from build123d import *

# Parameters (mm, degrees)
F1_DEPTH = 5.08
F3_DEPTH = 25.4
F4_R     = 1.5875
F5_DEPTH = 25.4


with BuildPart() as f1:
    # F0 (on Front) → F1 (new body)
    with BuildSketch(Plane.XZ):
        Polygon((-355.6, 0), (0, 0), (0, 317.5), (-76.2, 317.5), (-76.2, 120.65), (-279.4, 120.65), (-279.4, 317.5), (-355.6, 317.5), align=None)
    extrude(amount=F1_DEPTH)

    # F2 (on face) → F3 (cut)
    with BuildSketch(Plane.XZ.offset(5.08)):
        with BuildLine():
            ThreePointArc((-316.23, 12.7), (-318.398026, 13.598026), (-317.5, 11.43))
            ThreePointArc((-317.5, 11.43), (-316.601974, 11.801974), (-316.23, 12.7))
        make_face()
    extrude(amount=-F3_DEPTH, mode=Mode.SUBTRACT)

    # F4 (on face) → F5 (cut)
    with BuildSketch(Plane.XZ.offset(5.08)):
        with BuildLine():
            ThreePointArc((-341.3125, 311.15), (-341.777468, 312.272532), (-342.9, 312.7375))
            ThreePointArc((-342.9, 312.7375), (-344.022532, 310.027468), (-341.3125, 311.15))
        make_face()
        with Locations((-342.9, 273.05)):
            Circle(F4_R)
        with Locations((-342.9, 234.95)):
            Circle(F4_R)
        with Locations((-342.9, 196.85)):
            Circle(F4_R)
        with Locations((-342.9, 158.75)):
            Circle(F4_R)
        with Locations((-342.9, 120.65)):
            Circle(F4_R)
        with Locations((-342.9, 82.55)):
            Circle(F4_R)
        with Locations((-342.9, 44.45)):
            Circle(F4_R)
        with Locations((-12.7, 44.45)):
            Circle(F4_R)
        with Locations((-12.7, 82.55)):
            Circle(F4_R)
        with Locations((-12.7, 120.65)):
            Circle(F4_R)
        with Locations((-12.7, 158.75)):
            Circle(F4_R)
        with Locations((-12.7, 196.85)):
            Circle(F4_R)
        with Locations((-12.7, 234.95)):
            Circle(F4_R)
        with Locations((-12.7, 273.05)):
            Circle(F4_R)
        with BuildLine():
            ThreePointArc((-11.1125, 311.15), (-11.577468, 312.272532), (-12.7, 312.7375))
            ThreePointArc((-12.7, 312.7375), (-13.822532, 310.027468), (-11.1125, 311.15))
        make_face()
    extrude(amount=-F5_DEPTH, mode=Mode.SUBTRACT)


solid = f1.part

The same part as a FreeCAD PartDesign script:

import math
import FreeCAD as App
import Part
import Sketcher
from FreeCAD import Vector
Q = App.Units.Quantity

doc = App.newDocument("Part")
params = doc.addObject("Spreadsheet::Sheet", "Params")
for row, (alias, value) in enumerate([
    ("sketch1_width", "14 in"),
    ("sketch1_width2", "3 in"),
    ("sketch1_height", "12.5 in"),
    ("sketch1_height2", "7.75 in"),
    ("pad1_length", "0.2 in"),
    ("sketch2_radius", "0.05 in"),
    ("pocket1_length", "1 in"),
    ("sketch3_diameter", "0.125 in"),
    ("pocket2_length", "1 in"),
], start=1):
    params.set(f"A{row}", alias)
    params.set(f"B{row}", "=" + value)
    params.setAlias(f"B{row}", alias)

body = doc.addObject("PartDesign::Body", "Body")

sketch1 = doc.addObject("Sketcher::SketchObject", "Sketch")
body.addObject(sketch1)
sketch1.AttachmentSupport = (doc.XZ_Plane, [""])
sketch1.MapMode = "FlatFace"
sketch1.addGeometry(Part.LineSegment(Vector(-355.6, 0, 0), Vector(0, 0, 0)), False)
sketch1.addGeometry(Part.LineSegment(Vector(0, 0, 0), Vector(0, 317.5, 0)), False)
sketch1.addGeometry(Part.LineSegment(Vector(0, 317.5, 0), Vector(-76.2, 317.5, 0)), False)
sketch1.addGeometry(Part.LineSegment(Vector(-76.2, 317.5, 0), Vector(-76.2, 120.65, 0)), False)
sketch1.addGeometry(Part.LineSegment(Vector(-76.2, 120.65, 0), Vector(-279.4, 120.65, 0)), False)
sketch1.addGeometry(Part.LineSegment(Vector(-279.4, 120.65, 0), Vector(-279.4, 317.5, 0)), False)
sketch1.addGeometry(Part.LineSegment(Vector(-279.4, 317.5, 0), Vector(-355.6, 317.5, 0)), False)
sketch1.addGeometry(Part.LineSegment(Vector(-355.6, 317.5, 0), Vector(-355.6, 0, 0)), False)
sketch1.addConstraint(Sketcher.Constraint("Coincident", 0, 2, 1, 1))
sketch1.addConstraint(Sketcher.Constraint("Coincident", 1, 2, 2, 1))
sketch1.addConstraint(Sketcher.Constraint("Coincident", 2, 2, 3, 1))
sketch1.addConstraint(Sketcher.Constraint("Coincident", 3, 2, 4, 1))
sketch1.addConstraint(Sketcher.Constraint("Coincident", 4, 2, 5, 1))
sketch1.addConstraint(Sketcher.Constraint("Coincident", 5, 2, 6, 1))
sketch1.addConstraint(Sketcher.Constraint("Coincident", 6, 2, 7, 1))
sketch1.addConstraint(Sketcher.Constraint("Coincident", 7, 2, 0, 1))
sketch1.addConstraint(Sketcher.Constraint("Horizontal", 0))
sketch1.addConstraint(Sketcher.Constraint("Vertical", 1))
sketch1.addConstraint(Sketcher.Constraint("Horizontal", 2))
sketch1.addConstraint(Sketcher.Constraint("Vertical", 3))
sketch1.addConstraint(Sketcher.Constraint("Horizontal", 4))
sketch1.addConstraint(Sketcher.Constraint("Vertical", 5))
sketch1.addConstraint(Sketcher.Constraint("Horizontal", 6))
sketch1.addConstraint(Sketcher.Constraint("Vertical", 7))
sketch1.addConstraint(Sketcher.Constraint("Coincident", 0, 2, -1, 1))
sketch1.addConstraint(Sketcher.Constraint("Horizontal", 2, 2, 5, 2))
sketch1.addConstraint(Sketcher.Constraint("Equal", 2, 6))
sketch1.addConstraint(Sketcher.Constraint("DistanceX", 0, 1, 0, 2, Q("14 in")))
sketch1.addConstraint(Sketcher.Constraint("DistanceX", 2, 2, 2, 1, Q("3 in")))
sketch1.addConstraint(Sketcher.Constraint("DistanceY", 1, 1, 1, 2, Q("12.5 in")))
sketch1.addConstraint(Sketcher.Constraint("DistanceY", 3, 2, 3, 1, Q("7.75 in")))
sketch1.setExpression("Constraints[19]", "Params.sketch1_width")
sketch1.setExpression("Constraints[20]", "Params.sketch1_width2")
sketch1.setExpression("Constraints[21]", "Params.sketch1_height")
sketch1.setExpression("Constraints[22]", "Params.sketch1_height2")
pad1 = doc.addObject("PartDesign::Pad", "Pad")
body.addObject(pad1)
pad1.Profile = sketch1
pad1.setExpression("Length", "Params.pad1_length")

sketch2 = doc.addObject("Sketcher::SketchObject", "Sketch001")
body.addObject(sketch2)
sketch2.AttachmentSupport = (doc.XZ_Plane, [""])
sketch2.MapMode = "FlatFace"
sketch2.AttachmentOffset = App.Placement(Vector(0, 0, 0.2 * 25.4), App.Rotation())
sketch2.addGeometry(Part.ArcOfCircle(Part.Circle(Vector(-317.5, 12.7, 0), Vector(0, 0, 1), 1.27), math.radians(-0.00001), math.radians(270.00001)), False)
sketch2.addGeometry(Part.ArcOfCircle(Part.Circle(Vector(-317.499999, 12.699999, 0), Vector(0, 0, 1), 1.269999), math.radians(-90.00006), math.radians(0.00006)), False)
sketch2.addConstraint(Sketcher.Constraint("Tangent", 0, 1, 1, 2))
sketch2.addConstraint(Sketcher.Constraint("Coincident", 1, 1, 0, 2))
sketch2.addConstraint(Sketcher.Constraint("Horizontal", 1, 3, 0, 1))
sketch2.addConstraint(Sketcher.Constraint("Vertical", 0, 3, 1, 1))
sketch2.addConstraint(Sketcher.Constraint("Radius", 0, Q("0.05 in")))
sketch2.addConstraint(Sketcher.Constraint("DistanceX", 0, 3, -1, 1, Q("12.5 in")))
sketch2.addConstraint(Sketcher.Constraint("DistanceY", -1, 1, 0, 3, Q("0.5 in")))
sketch2.setExpression("Constraints[4]", "Params.sketch2_radius")
pocket1 = doc.addObject("PartDesign::Pocket", "Pocket")
body.addObject(pocket1)
pocket1.Profile = sketch2
pocket1.setExpression("Length", "Params.pocket1_length")

sketch3 = doc.addObject("Sketcher::SketchObject", "Sketch002")
body.addObject(sketch3)
sketch3.AttachmentSupport = (doc.XZ_Plane, [""])
sketch3.MapMode = "FlatFace"
sketch3.AttachmentOffset = App.Placement(Vector(0, 0, 0.2 * 25.4), App.Rotation())
sketch3.addGeometry(Part.ArcOfCircle(Part.Circle(Vector(-342.9, 311.15, 0), Vector(0, 0, 1), 1.5875), math.radians(0.000002), math.radians(89.999998)), False)
sketch3.addGeometry(Part.ArcOfCircle(Part.Circle(Vector(-342.9, 311.15, 0), Vector(0, 0, 1), 1.5875), math.radians(90), math.radians(360)), False)
sketch3.addGeometry(Part.Circle(Vector(-342.9, 273.05, 0), Vector(0, 0, 1), 1.5875), False)
sketch3.addGeometry(Part.Circle(Vector(-342.9, 234.95, 0), Vector(0, 0, 1), 1.5875), False)
sketch3.addGeometry(Part.Circle(Vector(-342.9, 196.85, 0), Vector(0, 0, 1), 1.5875), False)
sketch3.addGeometry(Part.Circle(Vector(-342.9, 158.75, 0), Vector(0, 0, 1), 1.5875), False)
sketch3.addGeometry(Part.Circle(Vector(-342.9, 120.65, 0), Vector(0, 0, 1), 1.5875), False)
sketch3.addGeometry(Part.Circle(Vector(-342.9, 82.55, 0), Vector(0, 0, 1), 1.5875), False)
sketch3.addGeometry(Part.Circle(Vector(-342.9, 44.45, 0), Vector(0, 0, 1), 1.5875), False)
sketch3.addGeometry(Part.Circle(Vector(-12.7, 44.45, 0), Vector(0, 0, 1), 1.5875), False)
sketch3.addGeometry(Part.Circle(Vector(-12.7, 82.55, 0), Vector(0, 0, 1), 1.5875), False)
sketch3.addGeometry(Part.Circle(Vector(-12.7, 120.65, 0), Vector(0, 0, 1), 1.5875), False)
sketch3.addGeometry(Part.Circle(Vector(-12.7, 158.75, 0), Vector(0, 0, 1), 1.5875), False)
sketch3.addGeometry(Part.Circle(Vector(-12.7, 196.85, 0), Vector(0, 0, 1), 1.5875), False)
sketch3.addGeometry(Part.Circle(Vector(-12.7, 234.95, 0), Vector(0, 0, 1), 1.5875), False)
sketch3.addGeometry(Part.Circle(Vector(-12.7, 273.05, 0), Vector(0, 0, 1), 1.5875), False)
sketch3.addGeometry(Part.ArcOfCircle(Part.Circle(Vector(-12.7, 311.15, 0), Vector(0, 0, 1), 1.5875), math.radians(0.000002), math.radians(89.999998)), False)
sketch3.addGeometry(Part.ArcOfCircle(Part.Circle(Vector(-12.7, 311.15, 0), Vector(0, 0, 1), 1.5875), math.radians(90), math.radians(360)), False)
sketch3.addConstraint(Sketcher.Constraint("Tangent", 0, 1, 1, 2))
sketch3.addConstraint(Sketcher.Constraint("Coincident", 1, 1, 0, 2))
sketch3.addConstraint(Sketcher.Constraint("Tangent", 16, 1, 17, 2))
sketch3.addConstraint(Sketcher.Constraint("Coincident", 17, 1, 16, 2))
sketch3.addConstraint(Sketcher.Constraint("Equal", 1, 2))
sketch3.addConstraint(Sketcher.Constraint("Equal", 2, 3))
sketch3.addConstraint(Sketcher.Constraint("Equal", 3, 4))
sketch3.addConstraint(Sketcher.Constraint("Equal", 4, 5))
sketch3.addConstraint(Sketcher.Constraint("Equal", 5, 6))
sketch3.addConstraint(Sketcher.Constraint("Equal", 6, 7))
sketch3.addConstraint(Sketcher.Constraint("Equal", 7, 8))
sketch3.addConstraint(Sketcher.Constraint("Equal", 8, 9))
sketch3.addConstraint(Sketcher.Constraint("Equal", 9, 10))
sketch3.addConstraint(Sketcher.Constraint("Equal", 10, 11))
sketch3.addConstraint(Sketcher.Constraint("Equal", 11, 12))
sketch3.addConstraint(Sketcher.Constraint("Equal", 12, 13))
sketch3.addConstraint(Sketcher.Constraint("Equal", 13, 14))
sketch3.addConstraint(Sketcher.Constraint("Equal", 14, 15))
sketch3.addConstraint(Sketcher.Constraint("Equal", 15, 16))
sketch3.addConstraint(Sketcher.Constraint("Horizontal", 8, 3, 9, 3))
sketch3.addConstraint(Sketcher.Constraint("Horizontal", 7, 3, 10, 3))
sketch3.addConstraint(Sketcher.Constraint("Horizontal", 6, 3, 11, 3))
sketch3.addConstraint(Sketcher.Constraint("Horizontal", 5, 3, 12, 3))
sketch3.addConstraint(Sketcher.Constraint("Horizontal", 4, 3, 13, 3))
sketch3.addConstraint(Sketcher.Constraint("Horizontal", 3, 3, 14, 3))
sketch3.addConstraint(Sketcher.Constraint("Horizontal", 2, 3, 15, 3))
sketch3.addConstraint(Sketcher.Constraint("Horizontal", 1, 3, 16, 3))
sketch3.addConstraint(Sketcher.Constraint("Horizontal", 17, 3, 0, 1))
sketch3.addConstraint(Sketcher.Constraint("Horizontal", 0, 1, 16, 1))
sketch3.addConstraint(Sketcher.Constraint("Vertical", 1, 3, 2, 3))
sketch3.addConstraint(Sketcher.Constraint("Vertical", 2, 3, 3, 3))
sketch3.addConstraint(Sketcher.Constraint("Vertical", 3, 3, 4, 3))
sketch3.addConstraint(Sketcher.Constraint("Vertical", 4, 3, 5, 3))
sketch3.addConstraint(Sketcher.Constraint("Vertical", 5, 3, 6, 3))
sketch3.addConstraint(Sketcher.Constraint("Vertical", 6, 3, 7, 3))
sketch3.addConstraint(Sketcher.Constraint("Vertical", 7, 3, 8, 3))
sketch3.addConstraint(Sketcher.Constraint("Vertical", 9, 3, 10, 3))
sketch3.addConstraint(Sketcher.Constraint("Vertical", 10, 3, 11, 3))
sketch3.addConstraint(Sketcher.Constraint("Vertical", 11, 3, 12, 3))
sketch3.addConstraint(Sketcher.Constraint("Vertical", 12, 3, 13, 3))
sketch3.addConstraint(Sketcher.Constraint("Vertical", 13, 3, 14, 3))
sketch3.addConstraint(Sketcher.Constraint("Vertical", 14, 3, 15, 3))
sketch3.addConstraint(Sketcher.Constraint("Vertical", 15, 3, 16, 3))
sketch3.addConstraint(Sketcher.Constraint("Vertical", 8, 3, 1, 1))
sketch3.addConstraint(Sketcher.Constraint("Vertical", 16, 3, 17, 1))
sketch3.addConstraint(Sketcher.Constraint("Diameter", 2, Q("0.125 in")))
sketch3.addConstraint(Sketcher.Constraint("DistanceY", 3, 3, 0, 3, Q("3 in")))
sketch3.addConstraint(Sketcher.Constraint("DistanceY", 4, 3, 2, 3, Q("3 in")))
sketch3.addConstraint(Sketcher.Constraint("DistanceY", 5, 3, 3, 3, Q("3 in")))
sketch3.addConstraint(Sketcher.Constraint("DistanceY", 6, 3, 4, 3, Q("3 in")))
sketch3.addConstraint(Sketcher.Constraint("DistanceY", 7, 3, 5, 3, Q("3 in")))
sketch3.addConstraint(Sketcher.Constraint("DistanceY", 8, 3, 6, 3, Q("3 in")))
sketch3.addConstraint(Sketcher.Constraint("DistanceX", 8, 3, 9, 3, Q("13 in")))
sketch3.addConstraint(Sketcher.Constraint("DistanceX", 0, 3, -1, 1, Q("13.5 in")))
sketch3.addConstraint(Sketcher.Constraint("DistanceY", 2, 3, 0, 3, Q("1.5 in")))
sketch3.addConstraint(Sketcher.Constraint("DistanceY", -1, 1, 0, 3, Q("12.25 in")))
sketch3.setExpression("Constraints[45]", "Params.sketch3_diameter")
pocket2 = doc.addObject("PartDesign::Pocket", "Pocket001")
body.addObject(pocket2)
pocket2.Profile = sketch3
pocket2.setExpression("Length", "Params.pocket2_length")

doc.recompute()
